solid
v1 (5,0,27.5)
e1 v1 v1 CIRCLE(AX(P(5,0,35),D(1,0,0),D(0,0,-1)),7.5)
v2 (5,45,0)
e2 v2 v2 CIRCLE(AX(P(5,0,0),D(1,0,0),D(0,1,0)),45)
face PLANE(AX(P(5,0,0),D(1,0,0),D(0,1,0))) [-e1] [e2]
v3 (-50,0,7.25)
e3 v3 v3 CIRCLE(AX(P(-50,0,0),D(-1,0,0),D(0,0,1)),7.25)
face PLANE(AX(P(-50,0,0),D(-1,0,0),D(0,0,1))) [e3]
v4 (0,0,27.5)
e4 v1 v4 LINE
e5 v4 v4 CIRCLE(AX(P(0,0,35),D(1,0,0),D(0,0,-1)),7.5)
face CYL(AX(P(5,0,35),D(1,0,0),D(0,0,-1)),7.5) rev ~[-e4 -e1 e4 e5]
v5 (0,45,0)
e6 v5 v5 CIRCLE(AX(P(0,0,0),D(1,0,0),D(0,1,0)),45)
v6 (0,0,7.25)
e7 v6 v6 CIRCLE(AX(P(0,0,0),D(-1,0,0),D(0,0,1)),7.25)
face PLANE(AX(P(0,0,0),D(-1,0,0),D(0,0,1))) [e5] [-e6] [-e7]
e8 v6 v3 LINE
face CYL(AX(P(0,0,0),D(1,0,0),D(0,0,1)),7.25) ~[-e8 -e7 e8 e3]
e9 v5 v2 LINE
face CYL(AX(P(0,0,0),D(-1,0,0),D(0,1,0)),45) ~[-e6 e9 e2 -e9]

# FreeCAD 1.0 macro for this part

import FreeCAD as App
import Part
import Sketcher

V = App.Vector

doc = App.newDocument("Part")
body = doc.addObject("PartDesign::Body", "Body")

# Sketch on YZ plane
sketch1 = body.newObject("Sketcher::SketchObject", "Sketch")
sketch1.AttachmentSupport = (doc.getObject("YZ_Plane"), [""])
sketch1.MapMode = "FlatFace"
sketch1.addGeometry([
    Part.Circle(V(0, 0, 0), V(0, 0, 1), 45),
    Part.Circle(V(0, 0, 0), V(0, 0, 1), 8),
], False)
sketch1.addConstraint([
    Sketcher.Constraint("Coincident", 0, 3, -1, 1),
    Sketcher.Constraint("Coincident", 1, 3, -1, 1),
    Sketcher.Constraint("Diameter", 0, 90.0),
    Sketcher.Constraint("Diameter", 1, 15.0),
])
pad1 = body.newObject("PartDesign::Pad", "Pad")
pad1.Profile = sketch1
pad1.Length = 5

# Sketch on YZ plane
sketch2 = body.newObject("Sketcher::SketchObject", "Sketch001")
sketch2.AttachmentSupport = (doc.getObject("YZ_Plane"), [""])
sketch2.MapMode = "FlatFace"
sketch2.AttachmentOffset = App.Placement(V(0, 0, 5), App.Rotation())
sketch2.addGeometry(Part.Circle(V(0, 35, 0), V(0, 0, 1), 8), False)
sketch2.addConstraint([
    Sketcher.Constraint("PointOnObject", 0, 3, -2),
    Sketcher.Constraint("Diameter", 0, 15.0),
    Sketcher.Constraint("DistanceY", -1, 1, 0, 3, 35.0),
])
pocket1 = body.newObject("PartDesign::Pocket", "Pocket")
pocket1.Profile = sketch2
pocket1.Length = 5

# Sketch on YZ plane
sketch3 = body.newObject("Sketcher::SketchObject", "Sketch002")
sketch3.AttachmentSupport = (doc.getObject("YZ_Plane"), [""])
sketch3.MapMode = "FlatFace"
sketch3.addGeometry(Part.Circle(V(0, 0, 0), V(0, 0, 1), 8), False)
sketch3.addConstraint([
    Sketcher.Constraint("Coincident", 0, 3, -1, 1),
    Sketcher.Constraint("Diameter", 0, 15.0),
])
pad2 = body.newObject("PartDesign::Pad", "Pad001")
pad2.Profile = sketch3
pad2.Length = 5

# Sketch on YZ plane
sketch4 = body.newObject("Sketcher::SketchObject", "Sketch003")
sketch4.AttachmentSupport = (doc.getObject("YZ_Plane"), [""])
sketch4.MapMode = "FlatFace"
sketch4.addGeometry(Part.Circle(V(0, 0, 0), V(0, 0, 1), 7), False)
sketch4.addConstraint([
    Sketcher.Constraint("Coincident", 0, 3, -1, 1),
    Sketcher.Constraint("Diameter", 0, 14.5),
])
pad3 = body.newObject("PartDesign::Pad", "Pad002")
pad3.Profile = sketch4
pad3.Length = 50
pad3.Reversed = True

doc.recompute()
